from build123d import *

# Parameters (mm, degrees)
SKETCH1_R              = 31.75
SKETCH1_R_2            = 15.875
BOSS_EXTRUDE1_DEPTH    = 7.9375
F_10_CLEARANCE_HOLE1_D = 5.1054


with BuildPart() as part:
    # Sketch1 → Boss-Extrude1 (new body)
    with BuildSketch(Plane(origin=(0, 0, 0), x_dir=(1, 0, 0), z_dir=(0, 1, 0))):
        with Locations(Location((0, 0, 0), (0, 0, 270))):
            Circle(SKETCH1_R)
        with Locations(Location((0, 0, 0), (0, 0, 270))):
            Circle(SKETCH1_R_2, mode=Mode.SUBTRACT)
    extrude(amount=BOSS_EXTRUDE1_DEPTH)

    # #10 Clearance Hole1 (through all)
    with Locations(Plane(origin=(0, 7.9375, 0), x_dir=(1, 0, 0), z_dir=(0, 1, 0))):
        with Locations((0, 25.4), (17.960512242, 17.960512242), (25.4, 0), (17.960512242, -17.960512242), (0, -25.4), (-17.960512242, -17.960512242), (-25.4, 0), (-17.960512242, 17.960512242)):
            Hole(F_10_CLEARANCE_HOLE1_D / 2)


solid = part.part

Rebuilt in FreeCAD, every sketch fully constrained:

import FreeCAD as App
import Part
import Sketcher

V = App.Vector
Q = App.Units.Quantity

doc = App.newDocument("Part")
body = doc.addObject("PartDesign::Body", "Body")

sketch1 = doc.addObject("Sketcher::SketchObject", "Sketch")
body.addObject(sketch1)
sketch1.AttachmentSupport = (doc.XZ_Plane, [""])
sketch1.MapMode = "FlatFace"
sketch1.addGeometry([
    Part.Circle(V(0, 0, 0), V(0, 0, 1), 32),
    Part.Circle(V(0, 0, 0), V(0, 0, 1), 16),
], False)
sketch1.addConstraint([
    Sketcher.Constraint("Coincident", 0, 3, -1, 1),
    Sketcher.Constraint("Coincident", 1, 3, -1, 1),
    Sketcher.Constraint("Diameter", 0, Q("2.5 in")),
    Sketcher.Constraint("Diameter", 1, Q("1.25 in")),
])
pad1 = doc.addObject("PartDesign::Pad", "Pad")
body.addObject(pad1)
pad1.Profile = sketch1
pad1.Length = Q("0.3125 in")
pad1.Reversed = True

sketch2 = doc.addObject("Sketcher::SketchObject", "Sketch001")
body.addObject(sketch2)
sketch2.AttachmentSupport = (doc.XZ_Plane, [""])
sketch2.MapMode = "FlatFace"
sketch2.AttachmentOffset = App.Placement(V(0, 0, -0.3125 * 25.4), App.Rotation())
sketch2.addGeometry([
    Part.Circle(V(0, -25.4, 0), V(0, 0, 1), 2.6),
    Part.Circle(V(18, -18, 0), V(0, 0, 1), 2.6),
    Part.Circle(V(25.4, 0, 0), V(0, 0, 1), 2.6),
    Part.Circle(V(18, 18, 0), V(0, 0, 1), 2.6),
    Part.Circle(V(0, 25.4, 0), V(0, 0, 1), 2.6),
    Part.Circle(V(-18, 18, 0), V(0, 0, 1), 2.6),
    Part.Circle(V(-25.4, 0, 0), V(0, 0, 1), 2.6),
    Part.Circle(V(-18, -18, 0), V(0, 0, 1), 2.6),
], False)
sketch2.addConstraint([
    Sketcher.Constraint("Equal", 0, 1),
    Sketcher.Constraint("Equal", 1, 2),
    Sketcher.Constraint("Equal", 2, 3),
    Sketcher.Constraint("Equal", 3, 4),
    Sketcher.Constraint("Equal", 4, 5),
    Sketcher.Constraint("Equal", 5, 6),
    Sketcher.Constraint("Equal", 6, 7),
    Sketcher.Constraint("Symmetric", 0, 3, 4, 3, -1, 1),
    Sketcher.Constraint("Symmetric", 1, 3, 5, 3, -1, 1),
    Sketcher.Constraint("Symmetric", 2, 3, 6, 3, -1, 1),
    Sketcher.Constraint("Symmetric", 3, 3, 7, 3, -1, 1),
    Sketcher.Constraint("Symmetric", 3, 3, 5, 3, -2),
    Sketcher.Constraint("PointOnObject", 0, 3, -2),
    Sketcher.Constraint("PointOnObject", 2, 3, -1),
    Sketcher.Constraint("Diameter", 0, Q("0.201 in")),
    Sketcher.Constraint("DistanceY", 0, 3, -1, 1, Q("1 in")),
    Sketcher.Constraint("DistanceX", -1, 1, 2, 3, Q("1 in")),
    Sketcher.Constraint("DistanceX", -1, 1, 1, 3, Q("17.960512 mm")),
    Sketcher.Constraint("DistanceY", 1, 3, -1, 1, Q("17.960512 mm")),
])
doc.recompute()
hole = doc.addObject("PartDesign::Hole", "Hole")
body.addObject(hole)
hole.Profile = sketch2
hole.ThreadType = "None"
hole.Diameter = Q("0.201 in")
hole.DepthType = "ThroughAll"
hole.Reversed = True

doc.recompute()
